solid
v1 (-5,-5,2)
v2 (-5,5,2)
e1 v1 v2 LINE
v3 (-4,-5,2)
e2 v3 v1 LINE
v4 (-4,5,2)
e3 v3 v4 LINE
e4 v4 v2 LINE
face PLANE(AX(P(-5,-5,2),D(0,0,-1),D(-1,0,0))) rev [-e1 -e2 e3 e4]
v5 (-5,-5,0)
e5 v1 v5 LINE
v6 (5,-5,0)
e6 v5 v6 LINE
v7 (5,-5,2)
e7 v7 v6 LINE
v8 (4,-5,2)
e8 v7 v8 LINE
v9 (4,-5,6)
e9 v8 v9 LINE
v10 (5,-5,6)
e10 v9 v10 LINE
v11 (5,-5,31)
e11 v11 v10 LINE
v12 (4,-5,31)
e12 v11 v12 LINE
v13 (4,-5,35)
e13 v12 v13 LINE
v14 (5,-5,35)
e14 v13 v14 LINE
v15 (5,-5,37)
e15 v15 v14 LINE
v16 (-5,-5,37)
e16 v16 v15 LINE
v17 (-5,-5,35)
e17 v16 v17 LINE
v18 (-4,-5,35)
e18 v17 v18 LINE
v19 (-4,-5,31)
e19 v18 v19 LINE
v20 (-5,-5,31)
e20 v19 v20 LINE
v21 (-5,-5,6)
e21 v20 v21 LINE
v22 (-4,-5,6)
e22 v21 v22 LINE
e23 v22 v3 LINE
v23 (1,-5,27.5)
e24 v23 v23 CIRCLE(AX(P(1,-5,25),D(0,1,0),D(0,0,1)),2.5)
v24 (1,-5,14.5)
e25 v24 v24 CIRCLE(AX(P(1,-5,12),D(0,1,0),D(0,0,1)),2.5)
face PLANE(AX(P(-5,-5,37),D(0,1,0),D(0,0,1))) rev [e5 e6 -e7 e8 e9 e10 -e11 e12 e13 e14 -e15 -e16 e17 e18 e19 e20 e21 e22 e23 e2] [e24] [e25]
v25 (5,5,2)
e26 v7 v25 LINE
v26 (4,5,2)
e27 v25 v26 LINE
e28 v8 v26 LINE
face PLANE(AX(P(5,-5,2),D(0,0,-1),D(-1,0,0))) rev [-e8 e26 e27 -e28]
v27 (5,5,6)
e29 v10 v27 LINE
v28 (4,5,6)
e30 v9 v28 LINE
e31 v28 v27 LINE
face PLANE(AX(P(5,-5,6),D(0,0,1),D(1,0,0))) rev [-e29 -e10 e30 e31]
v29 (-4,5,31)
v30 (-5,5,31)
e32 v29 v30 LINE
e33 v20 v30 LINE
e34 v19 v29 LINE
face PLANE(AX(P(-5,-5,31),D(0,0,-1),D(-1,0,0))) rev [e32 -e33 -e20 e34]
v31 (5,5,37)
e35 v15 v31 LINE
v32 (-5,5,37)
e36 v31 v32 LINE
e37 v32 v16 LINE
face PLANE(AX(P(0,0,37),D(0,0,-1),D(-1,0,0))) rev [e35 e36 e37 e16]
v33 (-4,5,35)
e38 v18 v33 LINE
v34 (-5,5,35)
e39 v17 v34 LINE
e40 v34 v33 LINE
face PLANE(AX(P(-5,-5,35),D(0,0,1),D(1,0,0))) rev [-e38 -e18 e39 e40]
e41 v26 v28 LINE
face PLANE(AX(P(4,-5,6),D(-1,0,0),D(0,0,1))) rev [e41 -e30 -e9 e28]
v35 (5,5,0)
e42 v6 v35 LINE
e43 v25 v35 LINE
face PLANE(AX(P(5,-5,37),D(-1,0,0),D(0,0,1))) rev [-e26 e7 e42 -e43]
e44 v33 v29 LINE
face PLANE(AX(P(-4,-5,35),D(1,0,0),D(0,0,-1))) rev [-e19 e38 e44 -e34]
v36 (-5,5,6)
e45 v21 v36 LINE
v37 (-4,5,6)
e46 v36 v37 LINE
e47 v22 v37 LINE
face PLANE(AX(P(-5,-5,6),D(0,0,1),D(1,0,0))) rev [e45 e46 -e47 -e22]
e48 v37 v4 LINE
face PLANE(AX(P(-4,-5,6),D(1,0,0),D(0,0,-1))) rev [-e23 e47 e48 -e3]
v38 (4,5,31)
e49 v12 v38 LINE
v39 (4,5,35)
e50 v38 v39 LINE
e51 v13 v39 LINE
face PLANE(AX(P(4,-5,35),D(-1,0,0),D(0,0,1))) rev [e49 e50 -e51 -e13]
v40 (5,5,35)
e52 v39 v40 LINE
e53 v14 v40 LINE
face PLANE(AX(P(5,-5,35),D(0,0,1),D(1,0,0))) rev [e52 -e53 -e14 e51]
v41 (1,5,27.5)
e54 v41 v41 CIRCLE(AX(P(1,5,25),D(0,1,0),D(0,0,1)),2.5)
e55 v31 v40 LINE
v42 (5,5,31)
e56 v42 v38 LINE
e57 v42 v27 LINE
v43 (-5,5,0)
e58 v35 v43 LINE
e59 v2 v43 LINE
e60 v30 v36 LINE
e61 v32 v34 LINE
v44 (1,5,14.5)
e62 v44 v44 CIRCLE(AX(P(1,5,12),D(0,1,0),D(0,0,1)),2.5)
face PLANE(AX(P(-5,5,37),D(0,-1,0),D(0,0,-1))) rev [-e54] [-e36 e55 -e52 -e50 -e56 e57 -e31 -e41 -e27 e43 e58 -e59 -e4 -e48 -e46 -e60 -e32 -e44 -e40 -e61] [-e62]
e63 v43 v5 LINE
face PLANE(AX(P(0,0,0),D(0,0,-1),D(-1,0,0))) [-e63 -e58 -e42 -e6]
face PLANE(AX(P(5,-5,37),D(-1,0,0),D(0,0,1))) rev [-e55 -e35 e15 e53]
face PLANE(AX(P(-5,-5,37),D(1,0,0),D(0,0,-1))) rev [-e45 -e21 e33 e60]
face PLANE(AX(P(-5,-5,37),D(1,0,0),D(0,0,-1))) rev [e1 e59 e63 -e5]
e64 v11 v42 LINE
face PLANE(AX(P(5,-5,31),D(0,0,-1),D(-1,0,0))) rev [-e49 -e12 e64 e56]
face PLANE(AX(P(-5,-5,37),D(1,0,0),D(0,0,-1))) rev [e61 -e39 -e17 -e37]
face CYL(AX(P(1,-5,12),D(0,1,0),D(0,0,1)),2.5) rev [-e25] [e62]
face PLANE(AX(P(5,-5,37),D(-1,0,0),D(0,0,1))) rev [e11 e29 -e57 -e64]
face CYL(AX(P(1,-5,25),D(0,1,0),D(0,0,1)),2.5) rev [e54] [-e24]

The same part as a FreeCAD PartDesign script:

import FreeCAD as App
import Part
import Sketcher
from FreeCAD import Vector


def add_polygon(sketch, points):
    """Adds a closed chain of lines whose ends are joined by coincident constraints."""
    first, n = sketch.GeometryCount, len(points)
    for a, b in zip(points, points[1:] + points[:1]):
        sketch.addGeometry(Part.LineSegment(App.Vector(*a, 0), App.Vector(*b, 0)), False)
    for i in range(n):
        sketch.addConstraint(Sketcher.Constraint("Coincident", first + i, 2, first + (i + 1) % n, 1))

doc = App.newDocument("Part")
body = doc.addObject("PartDesign::Body", "Body")

# Sketch on XY plane
sketch1 = doc.addObject("Sketcher::SketchObject", "Sketch")
body.addObject(sketch1)
sketch1.AttachmentSupport = (doc.XY_Plane, [""])
sketch1.MapMode = "FlatFace"
add_polygon(sketch1, [(-5, 5), (-5, -5), (5, -5), (5, 5)])  # lines 0-3
sketch1.addConstraint(Sketcher.Constraint("Vertical", 0))
sketch1.addConstraint(Sketcher.Constraint("Horizontal", 1))
sketch1.addConstraint(Sketcher.Constraint("Vertical", 2))
sketch1.addConstraint(Sketcher.Constraint("Horizontal", 3))
sketch1.addConstraint(Sketcher.Constraint("Symmetric", 0, 2, 2, 2, -1, 1))
sketch1.addConstraint(Sketcher.Constraint("Equal", 3, 0))
sketch1.addConstraint(Sketcher.Constraint("DistanceX", 1, 1, 1, 2, 10.0))
pad1 = doc.addObject("PartDesign::Pad", "Pad")
body.addObject(pad1)
pad1.Profile = sketch1
pad1.Length = 37

# Sketch on XZ plane
sketch2 = doc.addObject("Sketcher::SketchObject", "Sketch001")
body.addObject(sketch2)
sketch2.AttachmentSupport = (doc.XZ_Plane, [""])
sketch2.MapMode = "FlatFace"
sketch2.AttachmentOffset = App.Placement(Vector(0, 0, -5), App.Rotation())
sketch2.addGeometry(Part.Circle(Vector(1, 12, 0), Vector(0, 0, 1), 2.5), False)
sketch2.addGeometry(Part.Circle(Vector(1, 25, 0), Vector(0, 0, 1), 2.5), False)
sketch2.addConstraint(Sketcher.Constraint("Equal", 0, 1))
sketch2.addConstraint(Sketcher.Constraint("Vertical", 0, 3, 1, 3))
sketch2.addConstraint(Sketcher.Constraint("Diameter", 0, 5.0))
sketch2.addConstraint(Sketcher.Constraint("DistanceX", -1, 1, 0, 3, 1.0))
sketch2.addConstraint(Sketcher.Constraint("DistanceY", -1, 1, 0, 3, 12.0))
sketch2.addConstraint(Sketcher.Constraint("DistanceY", -1, 1, 1, 3, 25.0))
pocket1 = doc.addObject("PartDesign::Pocket", "Pocket")
body.addObject(pocket1)
pocket1.Profile = sketch2
pocket1.Type = "ThroughAll"
pocket1.Reversed = True

# Sketch on XZ plane
sketch3 = doc.addObject("Sketcher::SketchObject", "Sketch002")
body.addObject(sketch3)
sketch3.AttachmentSupport = (doc.XZ_Plane, [""])
sketch3.MapMode = "FlatFace"
sketch3.AttachmentOffset = App.Placement(Vector(0, 0, -5), App.Rotation())
add_polygon(sketch3, [(-5, 31), (-5, 35), (-4, 35), (-4, 31)])  # lines 0-3
add_polygon(sketch3, [(4, 31), (4, 35), (5, 35), (5, 31)])  # lines 4-7
add_polygon(sketch3, [(4, 2), (4, 6), (5, 6), (5, 2)])  # lines 8-11
add_polygon(sketch3, [(-5, 2), (-5, 6), (-4, 6), (-4, 2)])  # lines 12-15
sketch3.addConstraint(Sketcher.Constraint("Vertical", 0))
sketch3.addConstraint(Sketcher.Constraint("Horizontal", 1))
sketch3.addConstraint(Sketcher.Constraint("Vertical", 2))
sketch3.addConstraint(Sketcher.Constraint("Horizontal", 3))
sketch3.addConstraint(Sketcher.Constraint("Vertical", 4))
sketch3.addConstraint(Sketcher.Constraint("Horizontal", 5))
sketch3.addConstraint(Sketcher.Constraint("Vertical", 6))
sketch3.addConstraint(Sketcher.Constraint("Horizontal", 7))
sketch3.addConstraint(Sketcher.Constraint("Vertical", 8))
sketch3.addConstraint(Sketcher.Constraint("Horizontal", 9))
sketch3.addConstraint(Sketcher.Constraint("Vertical", 10))
sketch3.addConstraint(Sketcher.Constraint("Horizontal", 11))
sketch3.addConstraint(Sketcher.Constraint("Vertical", 12))
sketch3.addConstraint(Sketcher.Constraint("Horizontal", 13))
sketch3.addConstraint(Sketcher.Constraint("Vertical", 14))
sketch3.addConstraint(Sketcher.Constraint("Horizontal", 15))
sketch3.addConstraint(Sketcher.Constraint("Symmetric", 1, 2, 4, 2, -2))
sketch3.addConstraint(Sketcher.Constraint("Symmetric", 3, 2, 6, 2, -2))
sketch3.addConstraint(Sketcher.Constraint("Symmetric", 9, 2, 12, 2, -2))
sketch3.addConstraint(Sketcher.Constraint("Symmetric", 11, 2, 14, 2, -2))
sketch3.addConstraint(Sketcher.Constraint("Vertical", 7, 2, 8, 2))
sketch3.addConstraint(Sketcher.Constraint("Vertical", 6, 2, 9, 2))
sketch3.addConstraint(Sketcher.Constraint("Equal", 6, 8))
sketch3.addConstraint(Sketcher.Constraint("DistanceX", 1, 1, 1, 2, 1.0))
sketch3.addConstraint(Sketcher.Constraint("DistanceY", 0, 1, 0, 2, 4.0))
sketch3.addConstraint(Sketcher.Constraint("DistanceX", 0, 2, -1, 1, 5.0))
sketch3.addConstraint(Sketcher.Constraint("DistanceY", -1, 1, 0, 2, 35.0))
sketch3.addConstraint(Sketcher.Constraint("DistanceY", -1, 1, 8, 2, 6.0))
pocket2 = doc.addObject("PartDesign::Pocket", "Pocket001")
body.addObject(pocket2)
pocket2.Profile = sketch3
pocket2.Type = "ThroughAll"
pocket2.Reversed = True

doc.recompute()
